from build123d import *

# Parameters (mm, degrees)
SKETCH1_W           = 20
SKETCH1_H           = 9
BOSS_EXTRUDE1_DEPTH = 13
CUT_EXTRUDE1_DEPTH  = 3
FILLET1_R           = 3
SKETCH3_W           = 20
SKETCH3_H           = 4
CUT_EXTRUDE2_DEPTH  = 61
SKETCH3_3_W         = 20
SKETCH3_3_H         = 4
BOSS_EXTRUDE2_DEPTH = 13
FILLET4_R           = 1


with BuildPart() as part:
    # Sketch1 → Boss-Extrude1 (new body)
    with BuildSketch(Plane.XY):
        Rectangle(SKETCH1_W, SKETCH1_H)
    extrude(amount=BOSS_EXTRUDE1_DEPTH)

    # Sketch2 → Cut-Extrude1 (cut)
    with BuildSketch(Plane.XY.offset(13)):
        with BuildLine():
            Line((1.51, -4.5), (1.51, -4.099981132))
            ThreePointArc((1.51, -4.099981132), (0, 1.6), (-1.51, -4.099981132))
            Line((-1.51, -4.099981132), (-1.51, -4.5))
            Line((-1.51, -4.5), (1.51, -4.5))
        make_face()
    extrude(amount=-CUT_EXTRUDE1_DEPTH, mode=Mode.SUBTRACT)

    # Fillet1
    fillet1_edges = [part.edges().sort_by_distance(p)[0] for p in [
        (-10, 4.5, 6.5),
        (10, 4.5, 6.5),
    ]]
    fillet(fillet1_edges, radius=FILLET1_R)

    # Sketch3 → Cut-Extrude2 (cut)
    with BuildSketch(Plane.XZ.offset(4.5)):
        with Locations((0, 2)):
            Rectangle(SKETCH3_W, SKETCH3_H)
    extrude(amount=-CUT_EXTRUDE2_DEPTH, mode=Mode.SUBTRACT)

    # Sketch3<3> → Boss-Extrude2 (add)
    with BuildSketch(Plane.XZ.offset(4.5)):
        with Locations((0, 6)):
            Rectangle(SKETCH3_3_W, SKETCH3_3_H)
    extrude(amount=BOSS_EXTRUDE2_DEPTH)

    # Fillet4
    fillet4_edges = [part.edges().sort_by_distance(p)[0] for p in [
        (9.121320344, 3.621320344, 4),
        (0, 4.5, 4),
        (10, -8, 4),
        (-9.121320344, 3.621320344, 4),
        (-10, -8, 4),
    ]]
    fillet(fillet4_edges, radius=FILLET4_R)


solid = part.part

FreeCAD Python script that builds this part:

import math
import FreeCAD as App
import Part
import Sketcher

V = App.Vector
Q = App.Units.Quantity


def edges_at(feature, points):
    """Names of the edges that pass closest to the given points."""
    edges = feature.Shape.Edges
    near = lambda p: min(range(len(edges)), key=lambda i: edges[i].distToShape(Part.Vertex(*p))[0])
    return sorted({f"Edge{near(p) + 1}" for p in points})


def add_polygon(sketch, points):
    """Adds a closed chain of lines whose ends are joined by coincident constraints."""
    first, n = sketch.GeometryCount, len(points)
    for a, b in zip(points, points[1:] + points[:1]):
        sketch.addGeometry(Part.LineSegment(App.Vector(*a, 0), App.Vector(*b, 0)), False)
    for i in range(n):
        sketch.addConstraint(Sketcher.Constraint("Coincident", first + i, 2, first + (i + 1) % n, 1))

doc = App.newDocument("Part")
params = doc.addObject("Spreadsheet::Sheet", "Params")
for row, (alias, value) in enumerate([
    ("sketch1_width", "20 mm"),
    ("sketch1_height", "9 mm"),
    ("pad1_length", "13 mm"),
    ("sketch2_radius", "3.05 mm"),
    ("sketch2_width", "3.02 mm"),
    ("pocket1_length", "3 mm"),
    ("fillet_radius", "3 mm"),
    ("sketch3_width", "20 mm"),
    ("sketch3_height", "4 mm"),
    ("pocket2_length", "61 mm"),
    ("sketch4_width", "20 mm"),
    ("sketch4_height", "4 mm"),
    ("pad2_length", "13 mm"),
    ("fillet2_radius", "1 mm"),
], start=1):
    params.set(f"A{row}", alias)
    params.set(f"B{row}", "=" + value)
    params.setAlias(f"B{row}", alias)

body = doc.addObject("PartDesign::Body", "Body")

# Sketch on XY plane
sketch1 = body.newObject("Sketcher::SketchObject", "Sketch")
sketch1.AttachmentSupport = (doc.getObject("XY_Plane"), [""])
sketch1.MapMode = "FlatFace"
add_polygon(sketch1, [(-10, 4.5), (-10, -4.5), (10, -4.5), (10, 4.5)])  # lines 0-3
sketch1.addConstraint(Sketcher.Constraint("Vertical", 0))
sketch1.addConstraint(Sketcher.Constraint("Horizontal", 1))
sketch1.addConstraint(Sketcher.Constraint("Vertical", 2))
sketch1.addConstraint(Sketcher.Constraint("Horizontal", 3))
sketch1.addConstraint(Sketcher.Constraint("Symmetric", 0, 2, 2, 2, -1, 1))
sketch1.addConstraint(Sketcher.Constraint("DistanceX", 1, 1, 1, 2, Q("20 mm")))
sketch1.addConstraint(Sketcher.Constraint("DistanceY", 0, 2, 0, 1, Q("9 mm")))
sketch1.setExpression("Constraints[9]", "Params.sketch1_width")
sketch1.setExpression("Constraints[10]", "Params.sketch1_height")
pad1 = body.newObject("PartDesign::Pad", "Pad")
pad1.Profile = sketch1
pad1.setExpression("Length", "Params.pad1_length")

# Sketch on XY plane
sketch2 = body.newObject("Sketcher::SketchObject", "Sketch001")
sketch2.AttachmentSupport = (doc.getObject("XY_Plane"), [""])
sketch2.MapMode = "FlatFace"
sketch2.AttachmentOffset = App.Placement(V(0, 0, 13), App.Rotation())
sketch2.addGeometry(Part.LineSegment(V(1.51, -4.5, 0), V(1.51, -4.099981, 0)), False)
sketch2.addGeometry(Part.ArcOfCircle(Part.Circle(V(0, -1.45, 0), V(0, 0, 1), 3.05), math.radians(-60.324845), math.radians(240.324845)), False)
sketch2.addGeometry(Part.LineSegment(V(-1.51, -4.099981, 0), V(-1.51, -4.5, 0)), False)
sketch2.addGeometry(Part.LineSegment(V(-1.51, -4.5, 0), V(1.51, -4.5, 0)), False)
sketch2.addConstraint(Sketcher.Constraint("Coincident", 0, 2, 1, 1))
sketch2.addConstraint(Sketcher.Constraint("Coincident", 1, 2, 2, 1))
sketch2.addConstraint(Sketcher.Constraint("Coincident", 2, 2, 3, 1))
sketch2.addConstraint(Sketcher.Constraint("Coincident", 3, 2, 0, 1))
sketch2.addConstraint(Sketcher.Constraint("Vertical", 0))
sketch2.addConstraint(Sketcher.Constraint("Vertical", 2))
sketch2.addConstraint(Sketcher.Constraint("Horizontal", 3))
sketch2.addConstraint(Sketcher.Constraint("Symmetric", 0, 2, 1, 2, -2))
sketch2.addConstraint(Sketcher.Constraint("Radius", 1, Q("3.05 mm")))
sketch2.addConstraint(Sketcher.Constraint("DistanceX", 3, 1, 3, 2, Q("3.02 mm")))
sketch2.addConstraint(Sketcher.Constraint("DistanceY", 2, 2, -1, 1, Q("4.5 mm")))
sketch2.addConstraint(Sketcher.Constraint("DistanceY", 1, 3, -1, 1, Q("1.45 mm")))
sketch2.setExpression("Constraints[8]", "Params.sketch2_radius")
sketch2.setExpression("Constraints[9]", "Params.sketch2_width")
pocket1 = body.newObject("PartDesign::Pocket", "Pocket")
pocket1.Profile = sketch2
pocket1.setExpression("Length", "Params.pocket1_length")
doc.recompute()

fillet = body.newObject("PartDesign::Fillet", "Fillet")
fillet.Base = (pocket1, edges_at(pocket1, [(-10, 4.5, 6.5), (10, 4.5, 6.5)]))
fillet.setExpression("Radius", "Params.fillet_radius")

# Sketch on XZ plane
sketch3 = body.newObject("Sketcher::SketchObject", "Sketch002")
sketch3.AttachmentSupport = (doc.getObject("XZ_Plane"), [""])
sketch3.MapMode = "FlatFace"
sketch3.AttachmentOffset = App.Placement(V(0, 0, 4.5), App.Rotation())
add_polygon(sketch3, [(-10, 4), (-10, 0), (10, 0), (10, 4)])  # lines 0-3
sketch3.addConstraint(Sketcher.Constraint("Vertical", 0))
sketch3.addConstraint(Sketcher.Constraint("Horizontal", 1))
sketch3.addConstraint(Sketcher.Constraint("Vertical", 2))
sketch3.addConstraint(Sketcher.Constraint("Horizontal", 3))
sketch3.addConstraint(Sketcher.Constraint("Symmetric", 0, 2, 1, 2, -1, 1))
sketch3.addConstraint(Sketcher.Constraint("DistanceX", 1, 1, 1, 2, Q("20 mm")))
sketch3.addConstraint(Sketcher.Constraint("DistanceY", 0, 2, 0, 1, Q("4 mm")))
sketch3.setExpression("Constraints[9]", "Params.sketch3_width")
sketch3.setExpression("Constraints[10]", "Params.sketch3_height")
pocket2 = body.newObject("PartDesign::Pocket", "Pocket001")
pocket2.Profile = sketch3
pocket2.setExpression("Length", "Params.pocket2_length")

# Sketch on XZ plane
sketch4 = body.newObject("Sketcher::SketchObject", "Sketch003")
sketch4.AttachmentSupport = (doc.getObject("XZ_Plane"), [""])
sketch4.MapMode = "FlatFace"
sketch4.AttachmentOffset = App.Placement(V(0, 0, 4.5), App.Rotation())
add_polygon(sketch4, [(-10, 8), (-10, 4), (10, 4), (10, 8)])  # lines 0-3
sketch4.addConstraint(Sketcher.Constraint("Vertical", 0))
sketch4.addConstraint(Sketcher.Constraint("Horizontal", 1))
sketch4.addConstraint(Sketcher.Constraint("Vertical", 2))
sketch4.addConstraint(Sketcher.Constraint("Horizontal", 3))
sketch4.addConstraint(Sketcher.Constraint("DistanceX", 1, 1, 1, 2, Q("20 mm")))
sketch4.addConstraint(Sketcher.Constraint("DistanceY", 0, 2, 0, 1, Q("4 mm")))
sketch4.addConstraint(Sketcher.Constraint("DistanceX", 0, 2, -1, 1, Q("10 mm")))
sketch4.addConstraint(Sketcher.Constraint("DistanceY", -1, 1, 0, 2, Q("4 mm")))
sketch4.setExpression("Constraints[8]", "Params.sketch4_width")
sketch4.setExpression("Constraints[9]", "Params.sketch4_height")
pad2 = body.newObject("PartDesign::Pad", "Pad001")
pad2.Profile = sketch4
pad2.setExpression("Length", "Params.pad2_length")
doc.recompute()

fillet2 = body.newObject("PartDesign::Fillet", "Fillet001")
fillet2.Base = (pad2, edges_at(pad2, [
    (9.121, 3.621, 4),
    (0, 4.5, 4),
    (10, -8, 4),
    (-9.121, 3.621, 4),
    (-10, -8, 4),
]))
fillet2.setExpression("Radius", "Params.fillet2_radius")

doc.recompute()
